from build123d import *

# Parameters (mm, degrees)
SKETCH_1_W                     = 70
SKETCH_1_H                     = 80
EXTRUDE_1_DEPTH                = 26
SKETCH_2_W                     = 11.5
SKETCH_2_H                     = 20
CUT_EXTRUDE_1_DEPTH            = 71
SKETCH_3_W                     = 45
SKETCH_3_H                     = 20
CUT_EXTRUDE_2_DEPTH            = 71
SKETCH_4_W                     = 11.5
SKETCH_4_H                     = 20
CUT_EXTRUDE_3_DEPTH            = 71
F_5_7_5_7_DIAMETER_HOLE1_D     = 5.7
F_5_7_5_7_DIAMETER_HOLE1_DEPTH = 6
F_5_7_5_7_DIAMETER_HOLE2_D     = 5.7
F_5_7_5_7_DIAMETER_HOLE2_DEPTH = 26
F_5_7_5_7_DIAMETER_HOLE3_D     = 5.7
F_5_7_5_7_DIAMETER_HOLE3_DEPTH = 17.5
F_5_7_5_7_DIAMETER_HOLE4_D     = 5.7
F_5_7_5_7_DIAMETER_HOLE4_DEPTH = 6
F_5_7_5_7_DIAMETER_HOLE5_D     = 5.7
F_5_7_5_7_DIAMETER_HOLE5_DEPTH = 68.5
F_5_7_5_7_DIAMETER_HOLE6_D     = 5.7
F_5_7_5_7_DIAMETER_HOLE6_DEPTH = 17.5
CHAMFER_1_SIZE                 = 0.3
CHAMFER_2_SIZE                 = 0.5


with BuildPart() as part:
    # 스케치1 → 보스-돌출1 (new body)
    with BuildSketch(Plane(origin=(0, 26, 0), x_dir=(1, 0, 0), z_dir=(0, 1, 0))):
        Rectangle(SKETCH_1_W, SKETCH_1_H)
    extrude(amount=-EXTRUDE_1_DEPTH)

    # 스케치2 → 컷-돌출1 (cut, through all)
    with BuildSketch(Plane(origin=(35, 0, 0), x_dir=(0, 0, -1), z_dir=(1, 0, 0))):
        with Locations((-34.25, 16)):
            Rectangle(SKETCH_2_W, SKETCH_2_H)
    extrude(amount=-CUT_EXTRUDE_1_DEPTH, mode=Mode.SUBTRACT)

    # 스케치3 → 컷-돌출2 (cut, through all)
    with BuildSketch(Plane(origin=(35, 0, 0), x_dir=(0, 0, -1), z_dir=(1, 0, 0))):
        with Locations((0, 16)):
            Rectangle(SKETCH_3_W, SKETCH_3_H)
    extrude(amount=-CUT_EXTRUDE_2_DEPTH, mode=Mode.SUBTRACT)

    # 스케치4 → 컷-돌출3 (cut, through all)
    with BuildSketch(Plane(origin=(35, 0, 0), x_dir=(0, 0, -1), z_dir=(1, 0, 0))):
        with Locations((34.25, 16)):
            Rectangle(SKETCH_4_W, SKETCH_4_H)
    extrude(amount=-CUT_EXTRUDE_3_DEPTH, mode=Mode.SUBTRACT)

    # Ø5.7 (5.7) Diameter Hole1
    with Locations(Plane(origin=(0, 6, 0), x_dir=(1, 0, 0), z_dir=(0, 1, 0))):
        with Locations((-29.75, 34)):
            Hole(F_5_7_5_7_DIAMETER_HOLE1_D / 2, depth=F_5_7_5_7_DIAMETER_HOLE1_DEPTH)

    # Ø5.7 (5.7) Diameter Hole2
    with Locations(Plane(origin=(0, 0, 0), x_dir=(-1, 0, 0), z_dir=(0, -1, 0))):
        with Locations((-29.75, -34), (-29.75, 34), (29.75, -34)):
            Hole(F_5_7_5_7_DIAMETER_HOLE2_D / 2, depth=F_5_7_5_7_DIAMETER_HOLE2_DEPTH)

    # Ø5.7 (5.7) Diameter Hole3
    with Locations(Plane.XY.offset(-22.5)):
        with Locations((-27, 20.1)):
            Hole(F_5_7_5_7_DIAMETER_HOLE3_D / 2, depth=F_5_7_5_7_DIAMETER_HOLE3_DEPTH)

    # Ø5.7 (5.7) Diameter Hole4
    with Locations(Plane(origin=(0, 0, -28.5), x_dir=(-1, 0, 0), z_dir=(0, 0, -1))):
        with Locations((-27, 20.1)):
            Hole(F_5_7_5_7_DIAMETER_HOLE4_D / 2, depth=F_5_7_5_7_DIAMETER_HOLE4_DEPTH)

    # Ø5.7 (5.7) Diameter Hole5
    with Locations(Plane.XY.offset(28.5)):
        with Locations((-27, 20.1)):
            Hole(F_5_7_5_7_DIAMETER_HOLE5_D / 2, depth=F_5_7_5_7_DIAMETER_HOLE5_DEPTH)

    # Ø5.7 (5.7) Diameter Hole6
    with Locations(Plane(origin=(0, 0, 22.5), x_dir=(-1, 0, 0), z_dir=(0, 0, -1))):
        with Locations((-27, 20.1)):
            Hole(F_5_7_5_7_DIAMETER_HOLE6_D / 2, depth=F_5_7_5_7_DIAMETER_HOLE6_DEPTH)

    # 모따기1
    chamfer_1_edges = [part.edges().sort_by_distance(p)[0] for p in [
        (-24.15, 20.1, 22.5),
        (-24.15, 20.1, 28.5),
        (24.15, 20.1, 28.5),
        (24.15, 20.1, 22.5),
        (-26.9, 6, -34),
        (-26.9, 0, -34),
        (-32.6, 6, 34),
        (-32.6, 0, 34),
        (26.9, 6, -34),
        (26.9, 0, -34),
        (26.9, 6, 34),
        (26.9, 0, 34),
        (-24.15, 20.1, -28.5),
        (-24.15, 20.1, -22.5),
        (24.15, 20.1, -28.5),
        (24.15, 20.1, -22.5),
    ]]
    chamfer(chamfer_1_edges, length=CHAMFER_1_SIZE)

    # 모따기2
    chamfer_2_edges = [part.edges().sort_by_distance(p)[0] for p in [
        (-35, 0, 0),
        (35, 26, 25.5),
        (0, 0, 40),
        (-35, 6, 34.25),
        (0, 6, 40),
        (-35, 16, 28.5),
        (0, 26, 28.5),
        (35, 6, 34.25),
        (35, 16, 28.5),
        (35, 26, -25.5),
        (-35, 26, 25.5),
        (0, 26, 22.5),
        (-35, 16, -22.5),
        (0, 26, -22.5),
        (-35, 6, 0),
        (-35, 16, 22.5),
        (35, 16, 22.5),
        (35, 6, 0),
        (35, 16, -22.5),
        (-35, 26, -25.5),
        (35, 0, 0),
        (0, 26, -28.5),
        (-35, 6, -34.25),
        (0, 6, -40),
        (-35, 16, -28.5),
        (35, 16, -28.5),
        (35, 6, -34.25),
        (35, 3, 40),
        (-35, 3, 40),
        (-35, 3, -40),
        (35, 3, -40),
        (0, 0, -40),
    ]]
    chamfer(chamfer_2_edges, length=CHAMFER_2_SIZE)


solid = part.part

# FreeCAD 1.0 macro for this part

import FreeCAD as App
import Part
import Sketcher

V = App.Vector
Q = App.Units.Quantity


def edges_at(feature, points):
    """Names of the edges that pass closest to the given points."""
    edges = feature.Shape.Edges
    near = lambda p: min(range(len(edges)), key=lambda i: edges[i].distToShape(Part.Vertex(*p))[0])
    return sorted({f"Edge{near(p) + 1}" for p in points})

doc = App.newDocument("Part")
params = doc.addObject("Spreadsheet::Sheet", "Params")
for row, (alias, value) in enumerate([
    ("sketch1_width", "70 mm"),
    ("sketch1_height", "80 mm"),
    ("pad1_length", "26 mm"),
    ("sketch2_width", "20 mm"),
    ("sketch2_height", "11.5 mm"),
    ("sketch3_width", "20 mm"),
    ("sketch3_height", "45 mm"),
    ("sketch4_width", "20 mm"),
    ("sketch4_height", "11.5 mm"),
    ("sketch5_diameter", "5.7 mm"),
    ("hole_diameter", "5.7 mm"),
    ("hole_depth", "6 mm"),
    ("sketch6_diameter", "5.7 mm"),
    ("hole2_diameter", "5.7 mm"),
    ("hole2_depth", "26 mm"),
    ("sketch7_diameter", "5.7 mm"),
    ("hole3_diameter", "5.7 mm"),
    ("hole3_depth", "17.5 mm"),
    ("sketch8_diameter", "5.7 mm"),
    ("hole4_diameter", "5.7 mm"),
    ("hole4_depth", "6 mm"),
    ("sketch9_diameter", "5.7 mm"),
    ("hole5_diameter", "5.7 mm"),
    ("hole5_depth", "68.5 mm"),
    ("sketch10_diameter", "5.7 mm"),
    ("hole6_diameter", "5.7 mm"),
    ("hole6_depth", "17.5 mm"),
    ("chamfer_size", "0.3 mm"),
    ("chamfer2_size", "0.5 mm"),
], start=1):
    params.set(f"A{row}", alias)
    params.set(f"B{row}", "=" + value)
    params.setAlias(f"B{row}", alias)

body = doc.addObject("PartDesign::Body", "Body")

# Sketch on XZ plane
sketch1 = body.newObject("Sketcher::SketchObject", "Sketch")
sketch1.AttachmentSupport = (doc.getObject("XZ_Plane"), [""])
sketch1.MapMode = "FlatFace"
sketch1.AttachmentOffset = App.Placement(V(0, 0, -26), App.Rotation())
sketch1.addGeometry(Part.LineSegment(V(-35, -40, 0), V(-35, 40, 0)), False)
sketch1.addGeometry(Part.LineSegment(V(-35, 40, 0), V(35, 40, 0)), False)
sketch1.addGeometry(Part.LineSegment(V(35, 40, 0), V(35, -40, 0)), False)
sketch1.addGeometry(Part.LineSegment(V(35, -40, 0), V(-35, -40, 0)), False)
sketch1.addConstraint(Sketcher.Constraint("Coincident", 0, 2, 1, 1))
sketch1.addConstraint(Sketcher.Constraint("Coincident", 1, 2, 2, 1))
sketch1.addConstraint(Sketcher.Constraint("Coincident", 2, 2, 3, 1))
sketch1.addConstraint(Sketcher.Constraint("Coincident", 3, 2, 0, 1))
sketch1.addConstraint(Sketcher.Constraint("Vertical", 0))
sketch1.addConstraint(Sketcher.Constraint("Horizontal", 1))
sketch1.addConstraint(Sketcher.Constraint("Vertical", 2))
sketch1.addConstraint(Sketcher.Constraint("Horizontal", 3))
sketch1.addConstraint(Sketcher.Constraint("Symmetric", 0, 2, 2, 2, -1, 1))
sketch1.addConstraint(Sketcher.Constraint("DistanceX", 1, 1, 1, 2, Q("70 mm")))
sketch1.addConstraint(Sketcher.Constraint("DistanceY", 0, 1, 0, 2, Q("80 mm")))
sketch1.setExpression("Constraints[9]", "Params.sketch1_width")
sketch1.setExpression("Constraints[10]", "Params.sketch1_height")
pad1 = body.newObject("PartDesign::Pad", "Pad")
pad1.Profile = sketch1
pad1.setExpression("Length", "Params.pad1_length")

# Sketch on YZ plane
sketch2 = body.newObject("Sketcher::SketchObject", "Sketch001")
sketch2.AttachmentSupport = (doc.getObject("YZ_Plane"), [""])
sketch2.MapMode = "FlatFace"
sketch2.AttachmentOffset = App.Placement(V(0, 0, 35), App.Rotation())
sketch2.addGeometry(Part.LineSegment(V(26, 40, 0), V(6, 40, 0)), False)
sketch2.addGeometry(Part.LineSegment(V(6, 40, 0), V(6, 28, 0)), False)
sketch2.addGeometry(Part.LineSegment(V(6, 28, 0), V(26, 28, 0)), False)
sketch2.addGeometry(Part.LineSegment(V(26, 28, 0), V(26, 40, 0)), False)
sketch2.addConstraint(Sketcher.Constraint("Coincident", 0, 2, 1, 1))
sketch2.addConstraint(Sketcher.Constraint("Coincident", 1, 2, 2, 1))
sketch2.addConstraint(Sketcher.Constraint("Coincident", 2, 2, 3, 1))
sketch2.addConstraint(Sketcher.Constraint("Coincident", 3, 2, 0, 1))
sketch2.addConstraint(Sketcher.Constraint("Horizontal", 0))
sketch2.addConstraint(Sketcher.Constraint("Vertical", 1))
sketch2.addConstraint(Sketcher.Constraint("Horizontal", 2))
sketch2.addConstraint(Sketcher.Constraint("Vertical", 3))
sketch2.addConstraint(Sketcher.Constraint("DistanceX", 0, 2, 0, 1, Q("20 mm")))
sketch2.addConstraint(Sketcher.Constraint("DistanceY", 1, 2, 1, 1, Q("11.5 mm")))
sketch2.addConstraint(Sketcher.Constraint("DistanceX", -1, 1, 0, 2, Q("6 mm")))
sketch2.addConstraint(Sketcher.Constraint("DistanceY", -1, 1, 0, 2, Q("40 mm")))
sketch2.setExpression("Constraints[8]", "Params.sketch2_width")
sketch2.setExpression("Constraints[9]", "Params.sketch2_height")
pocket1 = body.newObject("PartDesign::Pocket", "Pocket")
pocket1.Profile = sketch2
pocket1.Type = "ThroughAll"

# Sketch on YZ plane
sketch3 = body.newObject("Sketcher::SketchObject", "Sketch002")
sketch3.AttachmentSupport = (doc.getObject("YZ_Plane"), [""])
sketch3.MapMode = "FlatFace"
sketch3.AttachmentOffset = App.Placement(V(0, 0, 35), App.Rotation())
sketch3.addGeometry(Part.LineSegment(V(26, 22, 0), V(6, 22, 0)), False)
sketch3.addGeometry(Part.LineSegment(V(6, 22, 0), V(6, -22, 0)), False)
sketch3.addGeometry(Part.LineSegment(V(6, -22, 0), V(26, -22, 0)), False)
sketch3.addGeometry(Part.LineSegment(V(26, -22, 0), V(26, 22, 0)), False)
sketch3.addConstraint(Sketcher.Constraint("Coincident", 0, 2, 1, 1))
sketch3.addConstraint(Sketcher.Constraint("Coincident", 1, 2, 2, 1))
sketch3.addConstraint(Sketcher.Constraint("Coincident", 2, 2, 3, 1))
sketch3.addConstraint(Sketcher.Constraint("Coincident", 3, 2, 0, 1))
sketch3.addConstraint(Sketcher.Constraint("Horizontal", 0))
sketch3.addConstraint(Sketcher.Constraint("Vertical", 1))
sketch3.addConstraint(Sketcher.Constraint("Horizontal", 2))
sketch3.addConstraint(Sketcher.Constraint("Vertical", 3))
sketch3.addConstraint(Sketcher.Constraint("DistanceX", 0, 2, 0, 1, Q("20 mm")))
sketch3.addConstraint(Sketcher.Constraint("DistanceY", 1, 2, 1, 1, Q("45 mm")))
sketch3.addConstraint(Sketcher.Constraint("DistanceX", -1, 1, 0, 2, Q("6 mm")))
sketch3.addConstraint(Sketcher.Constraint("DistanceY", -1, 1, 0, 2, Q("22.5 mm")))
sketch3.setExpression("Constraints[8]", "Params.sketch3_width")
sketch3.setExpression("Constraints[9]", "Params.sketch3_height")
pocket2 = body.newObject("PartDesign::Pocket", "Pocket001")
pocket2.Profile = sketch3
pocket2.Type = "ThroughAll"

# Sketch on YZ plane
sketch4 = body.newObject("Sketcher::SketchObject", "Sketch003")
sketch4.AttachmentSupport = (doc.getObject("YZ_Plane"), [""])
sketch4.MapMode = "FlatFace"
sketch4.AttachmentOffset = App.Placement(V(0, 0, 35), App.Rotation())
sketch4.addGeometry(Part.LineSegment(V(26, -28, 0), V(6, -28, 0)), False)
sketch4.addGeometry(Part.LineSegment(V(6, -28, 0), V(6, -40, 0)), False)
sketch4.addGeometry(Part.LineSegment(V(6, -40, 0), V(26, -40, 0)), False)
sketch4.addGeometry(Part.LineSegment(V(26, -40, 0), V(26, -28, 0)), False)
sketch4.addConstraint(Sketcher.Constraint("Coincident", 0, 2, 1, 1))
sketch4.addConstraint(Sketcher.Constraint("Coincident", 1, 2, 2, 1))
sketch4.addConstraint(Sketcher.Constraint("Coincident", 2, 2, 3, 1))
sketch4.addConstraint(Sketcher.Constraint("Coincident", 3, 2, 0, 1))
sketch4.addConstraint(Sketcher.Constraint("Horizontal", 0))
sketch4.addConstraint(Sketcher.Constraint("Vertical", 1))
sketch4.addConstraint(Sketcher.Constraint("Horizontal", 2))
sketch4.addConstraint(Sketcher.Constraint("Vertical", 3))
sketch4.addConstraint(Sketcher.Constraint("DistanceX", 0, 2, 0, 1, Q("20 mm")))
sketch4.addConstraint(Sketcher.Constraint("DistanceY", 1, 2, 1, 1, Q("11.5 mm")))
sketch4.addConstraint(Sketcher.Constraint("DistanceX", -1, 1, 0, 2, Q("6 mm")))
sketch4.addConstraint(Sketcher.Constraint("DistanceY", 1, 2, -1, 1, Q("40 mm")))
sketch4.setExpression("Constraints[8]", "Params.sketch4_width")
sketch4.setExpression("Constraints[9]", "Params.sketch4_height")
pocket3 = body.newObject("PartDesign::Pocket", "Pocket002")
pocket3.Profile = sketch4
pocket3.Type = "ThroughAll"

# Sketch on XZ plane
sketch5 = body.newObject("Sketcher::SketchObject", "Sketch004")
sketch5.AttachmentSupport = (doc.getObject("XZ_Plane"), [""])
sketch5.MapMode = "FlatFace"
sketch5.AttachmentOffset = App.Placement(V(0, 0, -6), App.Rotation())
sketch5.addGeometry(Part.Circle(V(-29.8, -34, 0), V(0, 0, 1), 2.9), False)
sketch5.addConstraint(Sketcher.Constraint("Diameter", 0, Q("5.7 mm")))
sketch5.addConstraint(Sketcher.Constraint("DistanceY", 0, 3, -1, 1, Q("34 mm")))
sketch5.addConstraint(Sketcher.Constraint("DistanceX", 0, 3, -1, 1, Q("29.75 mm")))
sketch5.setExpression("Constraints[0]", "Params.sketch5_diameter")
doc.recompute()
hole = body.newObject("PartDesign::Hole", "Hole")
hole.Profile = sketch5
hole.ThreadType = "None"
hole.setExpression("Diameter", "Params.hole_diameter")
hole.DepthType = "Dimension"
hole.setExpression("Depth", "Params.hole_depth")
hole.DrillPoint = "Flat"
hole.Reversed = True

# Sketch on XZ plane
sketch6 = body.newObject("Sketcher::SketchObject", "Sketch005")
sketch6.AttachmentSupport = (doc.getObject("XZ_Plane"), [""])
sketch6.MapMode = "FlatFace"
sketch6.addGeometry(Part.Circle(V(29.8, 34, 0), V(0, 0, 1), 2.9), False)
sketch6.addGeometry(Part.Circle(V(29.8, -34, 0), V(0, 0, 1), 2.9), False)
sketch6.addGeometry(Part.Circle(V(-29.8, 34, 0), V(0, 0, 1), 2.9), False)
sketch6.addConstraint(Sketcher.Constraint("Equal", 0, 1))
sketch6.addConstraint(Sketcher.Constraint("Equal", 1, 2))
sketch6.addConstraint(Sketcher.Constraint("Symmetric", 1, 3, 2, 3, -1, 1))
sketch6.addConstraint(Sketcher.Constraint("Symmetric", 0, 3, 2, 3, -2))
sketch6.addConstraint(Sketcher.Constraint("Diameter", 0, Q("5.7 mm")))
sketch6.addConstraint(Sketcher.Constraint("DistanceY", -1, 1, 0, 3, Q("34 mm")))
sketch6.addConstraint(Sketcher.Constraint("DistanceX", 2, 3, 0, 3, Q("59.5 mm")))
sketch6.setExpression("Constraints[4]", "Params.sketch6_diameter")
doc.recompute()
hole2 = body.newObject("PartDesign::Hole", "Hole001")
hole2.Profile = sketch6
hole2.ThreadType = "None"
hole2.setExpression("Diameter", "Params.hole2_diameter")
hole2.DepthType = "Dimension"
hole2.setExpression("Depth", "Params.hole2_depth")
hole2.DrillPoint = "Flat"

# Sketch on XY plane
sketch7 = body.newObject("Sketcher::SketchObject", "Sketch006")
sketch7.AttachmentSupport = (doc.getObject("XY_Plane"), [""])
sketch7.MapMode = "FlatFace"
sketch7.AttachmentOffset = App.Placement(V(0, 0, -22.5), App.Rotation())
sketch7.addGeometry(Part.Circle(V(-27, 20.1, 0), V(0, 0, 1), 2.9), False)
sketch7.addConstraint(Sketcher.Constraint("Diameter", 0, Q("5.7 mm")))
sketch7.addConstraint(Sketcher.Constraint("DistanceX", 0, 3, -1, 1, Q("27 mm")))
sketch7.addConstraint(Sketcher.Constraint("DistanceY", -1, 1, 0, 3, Q("20.1 mm")))
sketch7.setExpression("Constraints[0]", "Params.sketch7_diameter")
doc.recompute()
hole3 = body.newObject("PartDesign::Hole", "Hole002")
hole3.Profile = sketch7
hole3.ThreadType = "None"
hole3.setExpression("Diameter", "Params.hole3_diameter")
hole3.DepthType = "Dimension"
hole3.setExpression("Depth", "Params.hole3_depth")
hole3.DrillPoint = "Flat"

# Sketch on XY plane
sketch8 = body.newObject("Sketcher::SketchObject", "Sketch007")
sketch8.AttachmentSupport = (doc.getObject("XY_Plane"), [""])
sketch8.MapMode = "FlatFace"
sketch8.AttachmentOffset = App.Placement(V(0, 0, -28.5), App.Rotation())
sketch8.addGeometry(Part.Circle(V(27, 20.1, 0), V(0, 0, 1), 2.9), False)
sketch8.addConstraint(Sketcher.Constraint("Diameter", 0, Q("5.7 mm")))
sketch8.addConstraint(Sketcher.Constraint("DistanceX", -1, 1, 0, 3, Q("27 mm")))
sketch8.addConstraint(Sketcher.Constraint("DistanceY", -1, 1, 0, 3, Q("20.1 mm")))
sketch8.setExpression("Constraints[0]", "Params.sketch8_diameter")
doc.recompute()
hole4 = body.newObject("PartDesign::Hole", "Hole003")
hole4.Profile = sketch8
hole4.ThreadType = "None"
hole4.setExpression("Diameter", "Params.hole4_diameter")
hole4.DepthType = "Dimension"
hole4.setExpression("Depth", "Params.hole4_depth")
hole4.DrillPoint = "Flat"
hole4.Reversed = True

# Sketch on XY plane
sketch9 = body.newObject("Sketcher::SketchObject", "Sketch008")
sketch9.AttachmentSupport = (doc.getObject("XY_Plane"), [""])
sketch9.MapMode = "FlatFace"
sketch9.AttachmentOffset = App.Placement(V(0, 0, 28.5), App.Rotation())
sketch9.addGeometry(Part.Circle(V(-27, 20.1, 0), V(0, 0, 1), 2.9), False)
sketch9.addConstraint(Sketcher.Constraint("Diameter", 0, Q("5.7 mm")))
sketch9.addConstraint(Sketcher.Constraint("DistanceX", 0, 3, -1, 1, Q("27 mm")))
sketch9.addConstraint(Sketcher.Constraint("DistanceY", -1, 1, 0, 3, Q("20.1 mm")))
sketch9.setExpression("Constraints[0]", "Params.sketch9_diameter")
doc.recompute()
hole5 = body.newObject("PartDesign::Hole", "Hole004")
hole5.Profile = sketch9
hole5.ThreadType = "None"
hole5.setExpression("Diameter", "Params.hole5_diameter")
hole5.DepthType = "Dimension"
hole5.setExpression("Depth", "Params.hole5_depth")
hole5.DrillPoint = "Flat"

# Sketch on XY plane
sketch10 = body.newObject("Sketcher::SketchObject", "Sketch009")
sketch10.AttachmentSupport = (doc.getObject("XY_Plane"), [""])
sketch10.MapMode = "FlatFace"
sketch10.AttachmentOffset = App.Placement(V(0, 0, 22.5), App.Rotation())
sketch10.addGeometry(Part.Circle(V(27, 20.1, 0), V(0, 0, 1), 2.9), False)
sketch10.addConstraint(Sketcher.Constraint("Diameter", 0, Q("5.7 mm")))
sketch10.addConstraint(Sketcher.Constraint("DistanceX", -1, 1, 0, 3, Q("27 mm")))
sketch10.addConstraint(Sketcher.Constraint("DistanceY", -1, 1, 0, 3, Q("20.1 mm")))
sketch10.setExpression("Constraints[0]", "Params.sketch10_diameter")
doc.recompute()
hole6 = body.newObject("PartDesign::Hole", "Hole005")
hole6.Profile = sketch10
hole6.ThreadType = "None"
hole6.setExpression("Diameter", "Params.hole6_diameter")
hole6.DepthType = "Dimension"
hole6.setExpression("Depth", "Params.hole6_depth")
hole6.DrillPoint = "Flat"
hole6.Reversed = True
doc.recompute()

chamfer = body.newObject("PartDesign::Chamfer", "Chamfer")
chamfer.Base = (hole6, edges_at(hole6, [
    (-24.15, 20.1, 22.5),
    (-24.15, 20.1, 28.5),
    (24.15, 20.1, 28.5),
    (24.15, 20.1, 22.5),
    (-26.9, 6, -34),
    (-26.9, 0, -34),
    (-32.6, 6, 34),
    (-32.6, 0, 34),
    (26.9, 6, -34),
    (26.9, 0, -34),
    (26.9, 6, 34),
    (26.9, 0, 34),
    (-24.15, 20.1, -28.5),
    (-24.15, 20.1, -22.5),
    (24.15, 20.1, -28.5),
    (24.15, 20.1, -22.5),
]))
chamfer.setExpression("Size", "Params.chamfer_size")
doc.recompute()

chamfer2 = body.newObject("PartDesign::Chamfer", "Chamfer001")
chamfer2.Base = (chamfer, edges_at(chamfer, [
    (-35, 0, 0),
    (35, 26, 25.5),
    (0, 0, 40),
    (-35, 6, 34.25),
    (0, 6, 40),
    (-35, 16, 28.5),
    (0, 26, 28.5),
    (35, 6, 34.25),
    (35, 16, 28.5),
    (35, 26, -25.5),
    (-35, 26, 25.5),
    (0, 26, 22.5),
    (-35, 16, -22.5),
    (0, 26, -22.5),
    (-35, 6, 0),
    (-35, 16, 22.5),
    (35, 16, 22.5),
    (35, 6, 0),
    (35, 16, -22.5),
    (-35, 26, -25.5),
    (35, 0, 0),
    (0, 26, -28.5),
    (-35, 6, -34.25),
    (0, 6, -40),
    (-35, 16, -28.5),
    (35, 16, -28.5),
    (35, 6, -34.25),
    (35, 3, 40),
    (-35, 3, 40),
    (-35, 3, -40),
    (35, 3, -40),
    (0, 0, -40),
]))
chamfer2.setExpression("Size", "Params.chamfer2_size")

doc.recompute()
